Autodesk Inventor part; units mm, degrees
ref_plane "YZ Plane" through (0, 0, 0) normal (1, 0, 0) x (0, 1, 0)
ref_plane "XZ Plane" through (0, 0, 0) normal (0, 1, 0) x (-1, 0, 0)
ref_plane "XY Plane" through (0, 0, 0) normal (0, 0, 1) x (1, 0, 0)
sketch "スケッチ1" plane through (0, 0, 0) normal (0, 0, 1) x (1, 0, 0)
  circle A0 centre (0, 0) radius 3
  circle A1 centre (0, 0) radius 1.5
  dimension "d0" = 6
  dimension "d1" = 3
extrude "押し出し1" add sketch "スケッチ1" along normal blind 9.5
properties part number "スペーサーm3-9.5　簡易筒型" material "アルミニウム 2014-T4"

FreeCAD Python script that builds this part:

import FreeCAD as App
import Part
import Sketcher

V = App.Vector

doc = App.newDocument("Part")
body = doc.addObject("PartDesign::Body", "Body")

sketch1 = body.newObject("Sketcher::SketchObject", "Sketch")
sketch1.AttachmentSupport = (doc.getObject("XY_Plane"), [""])
sketch1.MapMode = "FlatFace"
sketch1.addGeometry([
    Part.Circle(V(0, 0, 0), V(0, 0, 1), 3),
    Part.Circle(V(0, 0, 0), V(0, 0, 1), 1.5),
], False)
sketch1.addConstraint([
    Sketcher.Constraint("Coincident", 0, 3, -1, 1),
    Sketcher.Constraint("Coincident", 1, 3, -1, 1),
    Sketcher.Constraint("Diameter", 0, 6.0),
    Sketcher.Constraint("Diameter", 1, 3.0),
])
pad1 = body.newObject("PartDesign::Pad", "Pad")
pad1.Profile = sketch1
pad1.Length = 9.5

doc.recompute()
